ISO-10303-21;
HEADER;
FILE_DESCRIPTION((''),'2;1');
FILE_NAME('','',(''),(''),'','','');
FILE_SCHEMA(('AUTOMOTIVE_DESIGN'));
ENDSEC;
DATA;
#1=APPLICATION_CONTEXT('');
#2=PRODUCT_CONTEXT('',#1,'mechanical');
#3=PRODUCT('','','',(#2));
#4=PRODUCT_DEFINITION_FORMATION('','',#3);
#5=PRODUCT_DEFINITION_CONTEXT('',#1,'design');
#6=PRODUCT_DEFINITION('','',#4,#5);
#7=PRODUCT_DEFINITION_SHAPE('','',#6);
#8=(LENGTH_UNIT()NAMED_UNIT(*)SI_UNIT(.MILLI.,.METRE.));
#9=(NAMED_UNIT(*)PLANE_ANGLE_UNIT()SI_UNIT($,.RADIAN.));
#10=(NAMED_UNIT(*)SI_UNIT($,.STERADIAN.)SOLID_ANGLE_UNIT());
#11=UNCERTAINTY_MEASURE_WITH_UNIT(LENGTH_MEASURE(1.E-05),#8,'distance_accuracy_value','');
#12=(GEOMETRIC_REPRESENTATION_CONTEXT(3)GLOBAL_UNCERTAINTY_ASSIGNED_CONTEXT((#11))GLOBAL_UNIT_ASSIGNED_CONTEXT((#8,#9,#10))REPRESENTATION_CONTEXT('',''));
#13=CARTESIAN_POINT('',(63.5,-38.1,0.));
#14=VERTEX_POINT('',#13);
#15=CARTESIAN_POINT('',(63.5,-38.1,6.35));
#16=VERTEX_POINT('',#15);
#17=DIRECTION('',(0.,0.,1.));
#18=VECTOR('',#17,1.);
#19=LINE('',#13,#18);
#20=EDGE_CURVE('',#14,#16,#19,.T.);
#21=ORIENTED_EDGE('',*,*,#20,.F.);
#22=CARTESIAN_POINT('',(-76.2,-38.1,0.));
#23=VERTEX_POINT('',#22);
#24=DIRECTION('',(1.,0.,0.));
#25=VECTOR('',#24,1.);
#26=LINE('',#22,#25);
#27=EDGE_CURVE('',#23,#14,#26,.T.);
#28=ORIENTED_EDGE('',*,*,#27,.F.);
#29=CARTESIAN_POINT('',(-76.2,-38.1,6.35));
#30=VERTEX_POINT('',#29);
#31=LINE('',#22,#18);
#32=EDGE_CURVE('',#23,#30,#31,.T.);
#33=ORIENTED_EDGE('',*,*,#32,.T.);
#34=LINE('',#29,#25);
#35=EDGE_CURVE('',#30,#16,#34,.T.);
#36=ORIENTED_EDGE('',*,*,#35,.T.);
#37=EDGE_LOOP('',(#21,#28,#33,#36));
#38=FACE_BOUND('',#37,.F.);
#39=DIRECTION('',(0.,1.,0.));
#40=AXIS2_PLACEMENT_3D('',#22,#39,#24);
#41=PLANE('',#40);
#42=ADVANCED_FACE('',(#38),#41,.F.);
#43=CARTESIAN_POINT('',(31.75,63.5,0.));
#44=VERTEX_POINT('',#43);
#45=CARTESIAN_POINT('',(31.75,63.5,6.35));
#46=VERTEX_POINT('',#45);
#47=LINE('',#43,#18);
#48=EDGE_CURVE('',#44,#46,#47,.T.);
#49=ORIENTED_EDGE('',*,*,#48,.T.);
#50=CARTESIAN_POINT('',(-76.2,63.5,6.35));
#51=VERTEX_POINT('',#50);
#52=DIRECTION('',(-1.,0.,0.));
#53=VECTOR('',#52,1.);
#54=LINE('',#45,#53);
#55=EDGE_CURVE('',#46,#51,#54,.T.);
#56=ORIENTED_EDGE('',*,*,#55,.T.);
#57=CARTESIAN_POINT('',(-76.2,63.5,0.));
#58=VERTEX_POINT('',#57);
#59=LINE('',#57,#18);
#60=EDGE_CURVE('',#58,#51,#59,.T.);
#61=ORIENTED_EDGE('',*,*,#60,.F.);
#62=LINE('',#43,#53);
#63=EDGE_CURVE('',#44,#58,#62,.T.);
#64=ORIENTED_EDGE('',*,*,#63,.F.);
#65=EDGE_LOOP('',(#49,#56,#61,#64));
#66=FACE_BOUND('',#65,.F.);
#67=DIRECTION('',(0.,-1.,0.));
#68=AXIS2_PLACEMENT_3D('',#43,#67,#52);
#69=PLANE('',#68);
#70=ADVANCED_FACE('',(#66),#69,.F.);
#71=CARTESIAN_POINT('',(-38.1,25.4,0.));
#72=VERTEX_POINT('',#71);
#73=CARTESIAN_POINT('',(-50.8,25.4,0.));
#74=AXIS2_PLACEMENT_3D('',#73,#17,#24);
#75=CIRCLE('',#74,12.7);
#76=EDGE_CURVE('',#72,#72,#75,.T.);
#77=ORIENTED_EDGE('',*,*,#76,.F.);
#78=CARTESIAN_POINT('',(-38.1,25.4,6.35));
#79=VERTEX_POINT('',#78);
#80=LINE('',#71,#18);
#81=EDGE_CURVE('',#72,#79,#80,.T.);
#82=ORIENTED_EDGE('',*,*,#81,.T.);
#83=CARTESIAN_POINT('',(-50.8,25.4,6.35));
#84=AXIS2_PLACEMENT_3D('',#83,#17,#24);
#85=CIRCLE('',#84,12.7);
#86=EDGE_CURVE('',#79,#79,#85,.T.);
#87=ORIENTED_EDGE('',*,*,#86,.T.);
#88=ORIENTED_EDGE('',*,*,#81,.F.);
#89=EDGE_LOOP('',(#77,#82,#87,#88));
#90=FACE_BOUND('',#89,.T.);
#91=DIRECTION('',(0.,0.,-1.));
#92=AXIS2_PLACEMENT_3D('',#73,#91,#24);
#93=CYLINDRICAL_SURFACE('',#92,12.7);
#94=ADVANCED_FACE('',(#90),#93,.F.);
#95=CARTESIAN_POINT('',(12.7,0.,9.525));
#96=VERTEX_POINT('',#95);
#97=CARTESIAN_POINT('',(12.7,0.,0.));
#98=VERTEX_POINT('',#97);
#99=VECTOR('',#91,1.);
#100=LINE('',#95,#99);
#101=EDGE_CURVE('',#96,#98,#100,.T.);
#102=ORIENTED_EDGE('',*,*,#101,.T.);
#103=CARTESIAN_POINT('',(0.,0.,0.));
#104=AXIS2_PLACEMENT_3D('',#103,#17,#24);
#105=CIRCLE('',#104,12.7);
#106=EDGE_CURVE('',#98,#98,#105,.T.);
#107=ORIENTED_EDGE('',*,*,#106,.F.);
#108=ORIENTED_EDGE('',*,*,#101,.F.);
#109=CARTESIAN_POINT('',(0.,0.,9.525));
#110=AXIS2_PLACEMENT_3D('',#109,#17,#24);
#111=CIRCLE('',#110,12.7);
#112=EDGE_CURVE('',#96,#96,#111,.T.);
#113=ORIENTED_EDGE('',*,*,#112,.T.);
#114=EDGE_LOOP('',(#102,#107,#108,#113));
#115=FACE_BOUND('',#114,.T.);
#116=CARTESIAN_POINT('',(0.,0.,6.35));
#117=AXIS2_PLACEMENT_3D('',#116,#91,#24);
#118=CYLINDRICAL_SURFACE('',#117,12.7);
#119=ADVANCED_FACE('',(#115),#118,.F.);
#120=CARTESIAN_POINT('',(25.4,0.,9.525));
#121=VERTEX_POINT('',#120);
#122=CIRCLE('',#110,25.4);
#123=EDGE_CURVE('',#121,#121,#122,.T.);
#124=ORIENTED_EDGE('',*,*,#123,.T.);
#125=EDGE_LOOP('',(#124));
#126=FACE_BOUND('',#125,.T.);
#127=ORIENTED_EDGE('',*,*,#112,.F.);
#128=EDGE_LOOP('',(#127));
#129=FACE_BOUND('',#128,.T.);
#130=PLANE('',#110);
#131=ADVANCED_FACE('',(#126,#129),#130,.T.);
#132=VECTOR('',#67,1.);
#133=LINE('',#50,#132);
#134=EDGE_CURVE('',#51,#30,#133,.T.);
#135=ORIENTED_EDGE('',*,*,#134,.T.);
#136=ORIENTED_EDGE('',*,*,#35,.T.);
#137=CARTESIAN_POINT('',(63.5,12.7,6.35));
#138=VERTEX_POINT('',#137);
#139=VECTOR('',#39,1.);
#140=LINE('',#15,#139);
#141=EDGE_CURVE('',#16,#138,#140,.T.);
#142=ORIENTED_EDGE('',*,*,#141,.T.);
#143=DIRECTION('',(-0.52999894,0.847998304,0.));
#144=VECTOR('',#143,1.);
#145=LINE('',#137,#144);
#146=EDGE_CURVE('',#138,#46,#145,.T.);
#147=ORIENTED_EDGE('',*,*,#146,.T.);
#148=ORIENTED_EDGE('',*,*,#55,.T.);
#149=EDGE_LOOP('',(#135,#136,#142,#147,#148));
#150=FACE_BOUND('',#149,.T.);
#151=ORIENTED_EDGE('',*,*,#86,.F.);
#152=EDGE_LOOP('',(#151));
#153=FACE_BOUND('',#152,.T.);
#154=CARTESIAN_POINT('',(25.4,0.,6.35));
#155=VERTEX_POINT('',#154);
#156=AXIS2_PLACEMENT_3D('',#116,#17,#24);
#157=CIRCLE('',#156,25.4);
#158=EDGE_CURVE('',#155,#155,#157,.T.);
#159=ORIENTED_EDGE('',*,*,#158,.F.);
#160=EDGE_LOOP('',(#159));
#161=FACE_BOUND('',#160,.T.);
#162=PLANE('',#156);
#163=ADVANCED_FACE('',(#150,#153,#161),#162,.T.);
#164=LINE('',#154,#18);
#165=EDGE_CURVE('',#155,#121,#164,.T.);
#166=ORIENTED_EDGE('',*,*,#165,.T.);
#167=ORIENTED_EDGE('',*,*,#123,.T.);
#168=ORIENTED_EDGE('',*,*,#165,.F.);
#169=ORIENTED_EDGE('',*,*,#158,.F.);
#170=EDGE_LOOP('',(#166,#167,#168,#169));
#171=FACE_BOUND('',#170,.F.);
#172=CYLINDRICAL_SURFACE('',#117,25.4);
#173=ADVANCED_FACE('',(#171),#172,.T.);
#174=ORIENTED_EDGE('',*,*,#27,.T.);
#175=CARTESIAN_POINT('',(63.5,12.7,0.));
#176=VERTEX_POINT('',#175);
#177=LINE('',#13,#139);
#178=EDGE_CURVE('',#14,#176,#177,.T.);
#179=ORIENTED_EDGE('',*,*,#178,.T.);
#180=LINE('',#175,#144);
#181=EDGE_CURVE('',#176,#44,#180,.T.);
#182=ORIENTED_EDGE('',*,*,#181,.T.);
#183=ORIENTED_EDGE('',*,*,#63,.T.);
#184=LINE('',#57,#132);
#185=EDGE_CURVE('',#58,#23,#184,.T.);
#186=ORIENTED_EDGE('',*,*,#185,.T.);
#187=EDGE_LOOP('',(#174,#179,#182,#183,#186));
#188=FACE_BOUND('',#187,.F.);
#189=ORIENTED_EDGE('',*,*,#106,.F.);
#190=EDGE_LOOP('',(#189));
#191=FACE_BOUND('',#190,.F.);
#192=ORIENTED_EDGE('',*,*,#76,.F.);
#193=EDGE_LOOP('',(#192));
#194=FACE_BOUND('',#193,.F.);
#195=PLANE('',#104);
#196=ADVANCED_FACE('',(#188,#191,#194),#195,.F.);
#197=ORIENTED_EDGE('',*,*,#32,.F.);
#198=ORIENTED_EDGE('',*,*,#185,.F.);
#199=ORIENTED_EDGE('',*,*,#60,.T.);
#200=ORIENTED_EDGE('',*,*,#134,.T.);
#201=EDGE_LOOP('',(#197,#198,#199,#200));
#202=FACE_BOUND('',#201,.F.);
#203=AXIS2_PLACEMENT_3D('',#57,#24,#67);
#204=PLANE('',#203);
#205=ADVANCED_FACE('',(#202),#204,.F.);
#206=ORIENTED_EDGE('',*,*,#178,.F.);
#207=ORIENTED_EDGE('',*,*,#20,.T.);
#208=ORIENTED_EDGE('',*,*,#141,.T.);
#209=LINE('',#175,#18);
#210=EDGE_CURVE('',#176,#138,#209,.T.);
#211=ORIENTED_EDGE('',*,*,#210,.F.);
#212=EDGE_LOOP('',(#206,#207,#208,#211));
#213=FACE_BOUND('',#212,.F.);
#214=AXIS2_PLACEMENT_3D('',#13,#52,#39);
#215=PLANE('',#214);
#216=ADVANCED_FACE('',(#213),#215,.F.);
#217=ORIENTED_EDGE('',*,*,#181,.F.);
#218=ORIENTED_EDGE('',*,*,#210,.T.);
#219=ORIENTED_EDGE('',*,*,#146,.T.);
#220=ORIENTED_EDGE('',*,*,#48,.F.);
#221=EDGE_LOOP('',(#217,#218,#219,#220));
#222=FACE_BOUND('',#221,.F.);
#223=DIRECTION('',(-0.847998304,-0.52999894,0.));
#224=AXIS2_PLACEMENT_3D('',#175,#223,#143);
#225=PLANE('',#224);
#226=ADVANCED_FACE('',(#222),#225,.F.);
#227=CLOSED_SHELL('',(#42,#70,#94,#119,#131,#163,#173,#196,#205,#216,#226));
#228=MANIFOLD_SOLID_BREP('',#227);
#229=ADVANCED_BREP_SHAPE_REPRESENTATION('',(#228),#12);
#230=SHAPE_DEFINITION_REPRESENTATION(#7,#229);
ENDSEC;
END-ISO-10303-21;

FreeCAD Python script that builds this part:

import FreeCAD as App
import Part
import Sketcher
Q = App.Units.Quantity


def add_polygon(sketch, points):
    """Adds a closed chain of lines whose ends are joined by coincident constraints."""
    first, n = sketch.GeometryCount, len(points)
    for a, b in zip(points, points[1:] + points[:1]):
        sketch.addGeometry(Part.LineSegment(App.Vector(*a, 0), App.Vector(*b, 0)), False)
    for i in range(n):
        sketch.addConstraint(Sketcher.Constraint("Coincident", first + i, 2, first + (i + 1) % n, 1))

doc = App.newDocument("Part")
body = doc.addObject("PartDesign::Body", "Body")

sketch1 = doc.addObject("Sketcher::SketchObject", "Sketch")
body.addObject(sketch1)
sketch1.AttachmentSupport = (doc.XY_Plane, [""])
sketch1.MapMode = "FlatFace"
add_polygon(sketch1, [(-76.2, 63.5), (-76.2, -38.1), (63.5, -38.1), (63.5, 12.7), (31.75, 63.5)])
sketch1.addGeometry(Part.Circle(App.Vector(0, 0, 0), App.Vector(0, 0, 1), 12.7), False)
sketch1.addGeometry(Part.Circle(App.Vector(-50.8, 25.4, 0), App.Vector(0, 0, 1), 12.7), False)
sketch1.addConstraint([
    Sketcher.Constraint("Vertical", 0),
    Sketcher.Constraint("Horizontal", 1),
    Sketcher.Constraint("Vertical", 2),
    Sketcher.Constraint("Horizontal", 4),
    Sketcher.Constraint("Coincident", 5, 3, -1, 1),
    Sketcher.Constraint("Equal", 5, 6),
    Sketcher.Constraint("Diameter", 5, Q("1 in")),
    Sketcher.Constraint("DistanceY", 0, 2, 0, 1, Q("4 in")),
    Sketcher.Constraint("DistanceY", 2, 1, 2, 2, Q("2 in")),
    Sketcher.Constraint("DistanceX", 1, 1, 1, 2, Q("5.5 in")),
    Sketcher.Constraint("DistanceX", 6, 3, -1, 1, Q("2 in")),
    Sketcher.Constraint("DistanceY", -1, 1, 6, 3, Q("1 in")),
    Sketcher.Constraint("DistanceX", 0, 2, -1, 1, Q("3 in")),
    Sketcher.Constraint("DistanceX", 4, 2, 4, 1, Q("4.25 in")),
    Sketcher.Constraint("DistanceY", 0, 2, -1, 1, Q("1.5 in")),
])
pad1 = doc.addObject("PartDesign::Pad", "Pad")
body.addObject(pad1)
pad1.Profile = sketch1
pad1.Length = Q("0.25 in")

sketch2 = doc.addObject("Sketcher::SketchObject", "Sketch001")
body.addObject(sketch2)
sketch2.AttachmentSupport = (doc.XY_Plane, [""])
sketch2.MapMode = "FlatFace"
sketch2.AttachmentOffset = App.Placement(App.Vector(0, 0, 0.25 * 25.4), App.Rotation())
sketch2.addGeometry([
    Part.Circle(App.Vector(0, 0, 0), App.Vector(0, 0, 1), 25.4),
    Part.Circle(App.Vector(0, 0, 0), App.Vector(0, 0, 1), 12.7),
], False)
sketch2.addConstraint([
    Sketcher.Constraint("Coincident", 0, 3, -1, 1),
    Sketcher.Constraint("Coincident", 1, 3, -1, 1),
    Sketcher.Constraint("Diameter", 0, Q("2 in")),
    Sketcher.Constraint("Diameter", 1, Q("1 in")),
])
pad2 = doc.addObject("PartDesign::Pad", "Pad001")
body.addObject(pad2)
pad2.Profile = sketch2
pad2.Length = Q("0.125 in")

doc.recompute()
